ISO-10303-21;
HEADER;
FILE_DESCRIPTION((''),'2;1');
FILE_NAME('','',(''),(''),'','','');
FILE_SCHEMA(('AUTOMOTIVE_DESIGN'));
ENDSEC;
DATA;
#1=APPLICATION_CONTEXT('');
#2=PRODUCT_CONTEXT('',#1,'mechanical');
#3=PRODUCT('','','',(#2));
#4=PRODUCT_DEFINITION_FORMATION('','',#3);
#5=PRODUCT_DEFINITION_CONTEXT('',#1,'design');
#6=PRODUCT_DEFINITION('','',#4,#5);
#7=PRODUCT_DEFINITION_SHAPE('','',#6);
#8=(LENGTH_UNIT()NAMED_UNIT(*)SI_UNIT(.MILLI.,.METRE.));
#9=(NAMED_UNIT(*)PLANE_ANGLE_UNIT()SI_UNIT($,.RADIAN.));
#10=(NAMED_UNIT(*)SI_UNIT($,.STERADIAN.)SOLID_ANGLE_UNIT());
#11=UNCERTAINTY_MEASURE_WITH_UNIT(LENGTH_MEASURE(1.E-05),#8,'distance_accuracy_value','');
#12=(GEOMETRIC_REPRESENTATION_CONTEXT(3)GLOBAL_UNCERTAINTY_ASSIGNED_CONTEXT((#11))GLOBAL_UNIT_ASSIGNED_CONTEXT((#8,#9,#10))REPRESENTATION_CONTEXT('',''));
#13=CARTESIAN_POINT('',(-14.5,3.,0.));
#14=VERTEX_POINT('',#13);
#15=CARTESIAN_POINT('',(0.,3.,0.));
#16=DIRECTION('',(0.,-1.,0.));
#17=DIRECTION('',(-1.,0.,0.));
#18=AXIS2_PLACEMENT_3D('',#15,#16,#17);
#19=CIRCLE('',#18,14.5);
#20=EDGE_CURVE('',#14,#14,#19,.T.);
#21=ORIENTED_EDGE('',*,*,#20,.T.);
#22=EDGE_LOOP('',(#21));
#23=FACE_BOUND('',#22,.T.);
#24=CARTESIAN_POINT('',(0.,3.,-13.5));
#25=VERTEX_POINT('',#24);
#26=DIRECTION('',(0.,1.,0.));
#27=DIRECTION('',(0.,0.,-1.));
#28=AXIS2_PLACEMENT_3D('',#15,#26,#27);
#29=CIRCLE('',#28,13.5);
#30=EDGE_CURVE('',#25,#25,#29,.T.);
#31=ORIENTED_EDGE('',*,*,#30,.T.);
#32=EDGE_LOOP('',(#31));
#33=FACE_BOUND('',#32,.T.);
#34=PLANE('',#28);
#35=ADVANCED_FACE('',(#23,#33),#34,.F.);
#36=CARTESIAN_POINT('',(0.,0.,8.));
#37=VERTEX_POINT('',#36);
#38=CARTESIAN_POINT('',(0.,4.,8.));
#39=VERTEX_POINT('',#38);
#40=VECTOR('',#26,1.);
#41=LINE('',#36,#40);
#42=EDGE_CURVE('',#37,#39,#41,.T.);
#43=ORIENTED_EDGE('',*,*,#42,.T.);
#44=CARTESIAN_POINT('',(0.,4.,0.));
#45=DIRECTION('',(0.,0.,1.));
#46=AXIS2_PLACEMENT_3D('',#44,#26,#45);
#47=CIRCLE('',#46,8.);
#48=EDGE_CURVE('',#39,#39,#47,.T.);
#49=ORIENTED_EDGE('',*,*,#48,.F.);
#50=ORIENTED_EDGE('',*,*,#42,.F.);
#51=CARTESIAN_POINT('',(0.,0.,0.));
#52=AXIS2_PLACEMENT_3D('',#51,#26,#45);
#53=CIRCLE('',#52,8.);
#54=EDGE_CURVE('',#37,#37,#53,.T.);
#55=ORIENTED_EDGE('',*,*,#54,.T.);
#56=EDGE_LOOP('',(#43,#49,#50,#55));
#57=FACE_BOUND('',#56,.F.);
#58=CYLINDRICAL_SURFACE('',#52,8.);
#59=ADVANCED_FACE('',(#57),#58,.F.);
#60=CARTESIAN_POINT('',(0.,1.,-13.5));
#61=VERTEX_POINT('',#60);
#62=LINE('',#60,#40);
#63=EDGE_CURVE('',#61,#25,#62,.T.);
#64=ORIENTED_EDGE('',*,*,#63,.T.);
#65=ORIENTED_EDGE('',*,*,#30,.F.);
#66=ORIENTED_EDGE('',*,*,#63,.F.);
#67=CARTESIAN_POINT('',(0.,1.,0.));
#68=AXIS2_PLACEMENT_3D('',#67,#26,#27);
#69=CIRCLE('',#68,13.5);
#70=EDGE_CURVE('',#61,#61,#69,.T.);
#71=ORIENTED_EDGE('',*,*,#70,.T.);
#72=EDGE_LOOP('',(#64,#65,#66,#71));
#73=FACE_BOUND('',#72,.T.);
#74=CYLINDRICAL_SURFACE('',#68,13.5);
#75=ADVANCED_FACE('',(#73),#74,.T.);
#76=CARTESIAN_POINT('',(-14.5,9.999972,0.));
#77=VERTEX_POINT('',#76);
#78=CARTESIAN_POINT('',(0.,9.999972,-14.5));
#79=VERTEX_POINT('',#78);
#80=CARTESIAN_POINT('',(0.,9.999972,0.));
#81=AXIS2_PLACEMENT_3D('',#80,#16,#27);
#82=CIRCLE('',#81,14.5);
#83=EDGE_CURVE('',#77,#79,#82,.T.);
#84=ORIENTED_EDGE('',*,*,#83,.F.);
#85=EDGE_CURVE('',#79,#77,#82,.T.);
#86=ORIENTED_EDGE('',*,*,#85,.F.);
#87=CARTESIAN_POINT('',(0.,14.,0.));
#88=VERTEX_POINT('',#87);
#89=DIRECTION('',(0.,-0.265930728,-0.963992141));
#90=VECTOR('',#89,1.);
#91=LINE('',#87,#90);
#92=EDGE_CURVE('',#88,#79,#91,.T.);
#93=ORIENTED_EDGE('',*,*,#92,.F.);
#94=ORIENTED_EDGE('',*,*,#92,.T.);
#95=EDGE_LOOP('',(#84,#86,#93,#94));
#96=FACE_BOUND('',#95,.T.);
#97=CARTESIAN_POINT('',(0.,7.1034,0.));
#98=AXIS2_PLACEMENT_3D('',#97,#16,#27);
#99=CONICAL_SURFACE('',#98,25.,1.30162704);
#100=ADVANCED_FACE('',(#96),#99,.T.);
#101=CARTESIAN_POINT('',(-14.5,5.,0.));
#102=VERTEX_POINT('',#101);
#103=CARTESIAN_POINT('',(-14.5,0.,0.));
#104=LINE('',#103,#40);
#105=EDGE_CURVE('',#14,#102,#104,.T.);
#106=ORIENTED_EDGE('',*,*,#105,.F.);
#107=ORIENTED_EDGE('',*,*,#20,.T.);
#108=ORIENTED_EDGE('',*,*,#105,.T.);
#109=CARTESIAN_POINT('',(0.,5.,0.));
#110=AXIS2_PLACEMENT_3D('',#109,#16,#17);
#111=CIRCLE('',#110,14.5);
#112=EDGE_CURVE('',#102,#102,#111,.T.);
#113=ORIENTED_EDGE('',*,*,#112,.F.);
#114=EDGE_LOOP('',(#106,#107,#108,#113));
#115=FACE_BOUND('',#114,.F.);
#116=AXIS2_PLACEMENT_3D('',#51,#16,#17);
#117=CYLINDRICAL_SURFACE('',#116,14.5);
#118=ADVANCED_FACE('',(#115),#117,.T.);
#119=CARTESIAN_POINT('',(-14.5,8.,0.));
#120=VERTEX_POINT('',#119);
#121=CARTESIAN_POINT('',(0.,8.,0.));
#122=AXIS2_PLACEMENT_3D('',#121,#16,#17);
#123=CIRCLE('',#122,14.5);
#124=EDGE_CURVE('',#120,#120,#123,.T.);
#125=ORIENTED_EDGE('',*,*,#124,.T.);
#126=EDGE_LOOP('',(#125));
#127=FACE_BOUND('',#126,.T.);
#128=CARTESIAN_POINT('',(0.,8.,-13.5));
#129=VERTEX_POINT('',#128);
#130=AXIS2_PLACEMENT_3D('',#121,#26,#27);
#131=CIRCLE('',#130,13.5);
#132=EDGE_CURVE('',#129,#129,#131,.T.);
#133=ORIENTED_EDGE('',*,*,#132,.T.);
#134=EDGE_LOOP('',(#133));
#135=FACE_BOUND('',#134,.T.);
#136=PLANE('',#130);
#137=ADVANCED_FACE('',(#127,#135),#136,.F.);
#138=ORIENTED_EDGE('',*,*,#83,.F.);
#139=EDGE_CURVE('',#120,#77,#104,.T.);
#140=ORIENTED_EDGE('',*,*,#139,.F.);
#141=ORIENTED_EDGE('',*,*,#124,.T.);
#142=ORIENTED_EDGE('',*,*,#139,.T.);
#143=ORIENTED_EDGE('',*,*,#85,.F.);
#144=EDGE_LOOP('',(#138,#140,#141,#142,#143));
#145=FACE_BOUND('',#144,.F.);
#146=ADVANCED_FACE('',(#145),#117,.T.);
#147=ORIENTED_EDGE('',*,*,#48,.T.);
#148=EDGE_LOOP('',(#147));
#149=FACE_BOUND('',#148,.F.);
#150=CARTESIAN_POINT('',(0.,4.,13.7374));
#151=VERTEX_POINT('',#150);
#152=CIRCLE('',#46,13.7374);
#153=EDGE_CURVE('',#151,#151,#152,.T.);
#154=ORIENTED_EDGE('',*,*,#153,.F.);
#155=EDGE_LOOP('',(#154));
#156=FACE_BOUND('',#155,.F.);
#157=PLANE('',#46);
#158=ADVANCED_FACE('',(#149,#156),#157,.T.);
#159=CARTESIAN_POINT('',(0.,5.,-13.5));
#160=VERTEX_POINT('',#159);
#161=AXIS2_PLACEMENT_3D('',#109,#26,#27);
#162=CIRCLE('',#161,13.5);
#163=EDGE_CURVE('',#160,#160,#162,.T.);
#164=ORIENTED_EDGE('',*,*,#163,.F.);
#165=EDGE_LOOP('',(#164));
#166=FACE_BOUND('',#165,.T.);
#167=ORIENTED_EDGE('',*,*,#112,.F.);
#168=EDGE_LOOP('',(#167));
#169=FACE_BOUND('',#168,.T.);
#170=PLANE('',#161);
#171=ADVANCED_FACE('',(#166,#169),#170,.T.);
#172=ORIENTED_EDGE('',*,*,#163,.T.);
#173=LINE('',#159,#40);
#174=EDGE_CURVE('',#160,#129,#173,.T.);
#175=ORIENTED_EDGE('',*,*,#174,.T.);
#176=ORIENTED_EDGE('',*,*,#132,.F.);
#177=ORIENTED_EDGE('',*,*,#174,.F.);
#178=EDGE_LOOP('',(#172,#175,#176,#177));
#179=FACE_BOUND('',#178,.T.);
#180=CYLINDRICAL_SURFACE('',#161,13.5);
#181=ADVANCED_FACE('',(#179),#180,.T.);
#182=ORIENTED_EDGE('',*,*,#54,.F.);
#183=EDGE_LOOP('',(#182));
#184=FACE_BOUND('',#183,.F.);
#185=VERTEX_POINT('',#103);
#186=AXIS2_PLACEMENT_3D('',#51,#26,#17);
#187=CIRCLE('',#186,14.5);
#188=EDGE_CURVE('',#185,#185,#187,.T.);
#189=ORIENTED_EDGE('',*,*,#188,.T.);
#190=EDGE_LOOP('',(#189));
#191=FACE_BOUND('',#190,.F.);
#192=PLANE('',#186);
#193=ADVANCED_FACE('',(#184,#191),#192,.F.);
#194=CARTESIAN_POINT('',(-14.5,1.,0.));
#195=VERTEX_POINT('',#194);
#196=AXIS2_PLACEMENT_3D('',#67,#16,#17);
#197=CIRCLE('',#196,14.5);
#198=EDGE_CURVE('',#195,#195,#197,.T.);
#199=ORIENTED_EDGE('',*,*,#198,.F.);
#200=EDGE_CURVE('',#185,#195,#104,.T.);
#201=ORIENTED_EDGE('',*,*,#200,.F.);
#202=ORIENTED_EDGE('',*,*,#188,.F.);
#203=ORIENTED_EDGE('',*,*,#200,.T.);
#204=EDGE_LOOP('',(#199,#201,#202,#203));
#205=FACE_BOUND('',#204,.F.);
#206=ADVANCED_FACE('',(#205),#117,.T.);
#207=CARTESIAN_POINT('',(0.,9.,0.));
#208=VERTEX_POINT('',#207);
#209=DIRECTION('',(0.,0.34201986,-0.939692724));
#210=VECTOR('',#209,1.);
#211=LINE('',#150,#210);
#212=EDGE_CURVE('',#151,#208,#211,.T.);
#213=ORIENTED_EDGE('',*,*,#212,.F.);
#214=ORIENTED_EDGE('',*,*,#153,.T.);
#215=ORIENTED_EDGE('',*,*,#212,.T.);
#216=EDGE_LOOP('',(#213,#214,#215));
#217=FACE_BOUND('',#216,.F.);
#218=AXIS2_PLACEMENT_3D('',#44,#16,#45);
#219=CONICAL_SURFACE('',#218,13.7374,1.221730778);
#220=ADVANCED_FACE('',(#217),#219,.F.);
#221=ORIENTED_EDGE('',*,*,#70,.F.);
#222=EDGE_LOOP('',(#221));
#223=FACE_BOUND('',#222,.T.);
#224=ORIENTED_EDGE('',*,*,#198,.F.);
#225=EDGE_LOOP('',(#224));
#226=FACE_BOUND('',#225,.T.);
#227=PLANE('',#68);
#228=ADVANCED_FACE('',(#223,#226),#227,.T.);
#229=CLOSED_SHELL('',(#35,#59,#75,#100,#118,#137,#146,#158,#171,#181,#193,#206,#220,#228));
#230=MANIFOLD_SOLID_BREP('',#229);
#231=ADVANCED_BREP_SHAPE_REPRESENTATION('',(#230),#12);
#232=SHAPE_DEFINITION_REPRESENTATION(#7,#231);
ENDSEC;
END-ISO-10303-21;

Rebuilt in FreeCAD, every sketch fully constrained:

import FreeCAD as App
import Part
import Sketcher
from FreeCAD import Vector
Q = App.Units.Quantity

doc = App.newDocument("Part")
params = doc.addObject("Spreadsheet::Sheet", "Params")
for row, (alias, value) in enumerate([
    ("sketch1_diameter", "29 mm"),
    ("pad1_length", "14 mm"),
    ("sketch2_width", "3 mm"),
    ("sketch2_width2", "2 mm"),
    ("sketch2_height", "25 mm"),
    ("sketch2_height2", "1 mm"),
    ("groove_angle", "360 deg"),
    ("sketch3_width", "4 mm"),
    ("sketch3_height", "8 mm"),
    ("groove2_angle", "360 deg"),
], start=1):
    params.set(f"A{row}", alias)
    params.set(f"B{row}", "=" + value)
    params.setAlias(f"B{row}", alias)

body = doc.addObject("PartDesign::Body", "Body")

sketch1 = body.newObject("Sketcher::SketchObject", "Sketch")
sketch1.AttachmentSupport = (doc.getObject("XZ_Plane"), [""])
sketch1.MapMode = "FlatFace"
sketch1.addGeometry(Part.Circle(Vector(0, 0, 0), Vector(0, 0, 1), 14.5), False)
sketch1.addConstraint([
    Sketcher.Constraint("Coincident", 0, 3, -1, 1),
    Sketcher.Constraint("Diameter", 0, 29.0),
])
sketch1.setExpression("Constraints[1]", "Params.sketch1_diameter")
pad1 = body.newObject("PartDesign::Pad", "Pad")
pad1.Profile = sketch1
pad1.setExpression("Length", "Params.pad1_length")
pad1.Reversed = True

sketch2 = body.newObject("Sketcher::SketchObject", "Sketch001")
sketch2.AttachmentSupport = (doc.getObject("YZ_Plane"), [""])
sketch2.MapMode = "FlatFace"
sketch2.addGeometry([
    Part.LineSegment(Vector(14, 0, 0), Vector(7.1034, -25, 0)),
    Part.LineSegment(Vector(7.1034, -25, 0), Vector(14, -25, 0)),
    Part.LineSegment(Vector(14, -25, 0), Vector(14, 0, 0)),
    Part.LineSegment(Vector(5, -14.5, 0), Vector(8, -14.5, 0)),
    Part.LineSegment(Vector(8, -14.5, 0), Vector(8, -13.5, 0)),
    Part.LineSegment(Vector(8, -13.5, 0), Vector(5, -13.5, 0)),
    Part.LineSegment(Vector(5, -13.5, 0), Vector(5, -14.5, 0)),
    Part.LineSegment(Vector(1, -13.5, 0), Vector(1, -14.5, 0)),
    Part.LineSegment(Vector(1, -14.5, 0), Vector(3, -14.5, 0)),
    Part.LineSegment(Vector(3, -14.5, 0), Vector(3, -13.5, 0)),
    Part.LineSegment(Vector(3, -13.5, 0), Vector(1, -13.5, 0)),
], False)
sketch2.addConstraint([
    Sketcher.Constraint("Coincident", 0, 2, 1, 1),
    Sketcher.Constraint("Coincident", 1, 2, 2, 1),
    Sketcher.Constraint("Coincident", 2, 2, 0, 1),
    Sketcher.Constraint("Coincident", 3, 2, 4, 1),
    Sketcher.Constraint("Coincident", 4, 2, 5, 1),
    Sketcher.Constraint("Coincident", 5, 2, 6, 1),
    Sketcher.Constraint("Coincident", 6, 2, 3, 1),
    Sketcher.Constraint("Coincident", 7, 2, 8, 1),
    Sketcher.Constraint("Coincident", 8, 2, 9, 1),
    Sketcher.Constraint("Coincident", 9, 2, 10, 1),
    Sketcher.Constraint("Coincident", 10, 2, 7, 1),
    Sketcher.Constraint("Horizontal", 1),
    Sketcher.Constraint("Vertical", 2),
    Sketcher.Constraint("Horizontal", 3),
    Sketcher.Constraint("Vertical", 4),
    Sketcher.Constraint("Horizontal", 5),
    Sketcher.Constraint("Vertical", 6),
    Sketcher.Constraint("Vertical", 7),
    Sketcher.Constraint("Horizontal", 8),
    Sketcher.Constraint("Vertical", 9),
    Sketcher.Constraint("Horizontal", 10),
    Sketcher.Constraint("PointOnObject", 2, 2, -1),
    Sketcher.Constraint("Horizontal", 6, 2, 7, 2),
    Sketcher.Constraint("Horizontal", 5, 2, 9, 2),
    Sketcher.Constraint("DistanceX", 3, 1, 3, 2, 3.0),
    Sketcher.Constraint("DistanceX", 8, 1, 8, 2, 2.0),
    Sketcher.Constraint("DistanceY", 2, 1, 2, 2, 25.0),
    Sketcher.Constraint("DistanceY", 4, 1, 4, 2, 1.0),
    Sketcher.Constraint("DistanceX", -1, 1, 7, 2, 1.0),
    Sketcher.Constraint("DistanceX", 8, 2, 6, 2, 2.0),
    Sketcher.Constraint("DistanceX", -1, 1, 1, 2, 14.0),
    Sketcher.Constraint("DistanceY", 3, 2, -1, 1, 14.5),
    Sketcher.Constraint("DistanceX", 1, 1, 1, 2, 6.8966),
])
sketch2.setExpression("Constraints[24]", "Params.sketch2_width")
sketch2.setExpression("Constraints[25]", "Params.sketch2_width2")
sketch2.setExpression("Constraints[26]", "Params.sketch2_height")
sketch2.setExpression("Constraints[27]", "Params.sketch2_height2")
groove = body.newObject("PartDesign::Groove", "Groove")
groove.Profile = sketch2
groove.ReferenceAxis = (sketch2, ["H_Axis"])
groove.setExpression("Angle", "Params.groove_angle")

sketch3 = body.newObject("Sketcher::SketchObject", "Sketch002")
sketch3.AttachmentSupport = (doc.getObject("YZ_Plane"), [""])
sketch3.MapMode = "FlatFace"
sketch3.addGeometry([
    Part.LineSegment(Vector(0, 8, 0), Vector(0, 0, 0)),
    Part.LineSegment(Vector(0, 0, 0), Vector(9, 0, 0)),
    Part.LineSegment(Vector(9, 0, 0), Vector(4, 13.7374, 0)),
    Part.LineSegment(Vector(4, 13.7374, 0), Vector(4, 8, 0)),
    Part.LineSegment(Vector(4, 8, 0), Vector(0, 8, 0)),
], False)
sketch3.addConstraint([
    Sketcher.Constraint("Coincident", 0, 2, 1, 1),
    Sketcher.Constraint("Coincident", 1, 2, 2, 1),
    Sketcher.Constraint("Coincident", 2, 2, 3, 1),
    Sketcher.Constraint("Coincident", 3, 2, 4, 1),
    Sketcher.Constraint("Coincident", 4, 2, 0, 1),
    Sketcher.Constraint("Vertical", 0),
    Sketcher.Constraint("Horizontal", 1),
    Sketcher.Constraint("Vertical", 3),
    Sketcher.Constraint("Horizontal", 4),
    Sketcher.Constraint("Coincident", 0, 2, -1, 1),
    Sketcher.Constraint("DistanceX", 4, 2, 4, 1, 4.0),
    Sketcher.Constraint("DistanceY", 0, 2, 0, 1, 8.0),
    Sketcher.Constraint("DistanceX", 2, 2, 1, 2, 5.0),
    Sketcher.Constraint("Angle", 2, Q("110 deg")),
])
sketch3.setExpression("Constraints[10]", "Params.sketch3_width")
sketch3.setExpression("Constraints[11]", "Params.sketch3_height")
groove2 = body.newObject("PartDesign::Groove", "Groove001")
groove2.Profile = sketch3
groove2.ReferenceAxis = (sketch3, ["H_Axis"])
groove2.setExpression("Angle", "Params.groove2_angle")

doc.recompute()
